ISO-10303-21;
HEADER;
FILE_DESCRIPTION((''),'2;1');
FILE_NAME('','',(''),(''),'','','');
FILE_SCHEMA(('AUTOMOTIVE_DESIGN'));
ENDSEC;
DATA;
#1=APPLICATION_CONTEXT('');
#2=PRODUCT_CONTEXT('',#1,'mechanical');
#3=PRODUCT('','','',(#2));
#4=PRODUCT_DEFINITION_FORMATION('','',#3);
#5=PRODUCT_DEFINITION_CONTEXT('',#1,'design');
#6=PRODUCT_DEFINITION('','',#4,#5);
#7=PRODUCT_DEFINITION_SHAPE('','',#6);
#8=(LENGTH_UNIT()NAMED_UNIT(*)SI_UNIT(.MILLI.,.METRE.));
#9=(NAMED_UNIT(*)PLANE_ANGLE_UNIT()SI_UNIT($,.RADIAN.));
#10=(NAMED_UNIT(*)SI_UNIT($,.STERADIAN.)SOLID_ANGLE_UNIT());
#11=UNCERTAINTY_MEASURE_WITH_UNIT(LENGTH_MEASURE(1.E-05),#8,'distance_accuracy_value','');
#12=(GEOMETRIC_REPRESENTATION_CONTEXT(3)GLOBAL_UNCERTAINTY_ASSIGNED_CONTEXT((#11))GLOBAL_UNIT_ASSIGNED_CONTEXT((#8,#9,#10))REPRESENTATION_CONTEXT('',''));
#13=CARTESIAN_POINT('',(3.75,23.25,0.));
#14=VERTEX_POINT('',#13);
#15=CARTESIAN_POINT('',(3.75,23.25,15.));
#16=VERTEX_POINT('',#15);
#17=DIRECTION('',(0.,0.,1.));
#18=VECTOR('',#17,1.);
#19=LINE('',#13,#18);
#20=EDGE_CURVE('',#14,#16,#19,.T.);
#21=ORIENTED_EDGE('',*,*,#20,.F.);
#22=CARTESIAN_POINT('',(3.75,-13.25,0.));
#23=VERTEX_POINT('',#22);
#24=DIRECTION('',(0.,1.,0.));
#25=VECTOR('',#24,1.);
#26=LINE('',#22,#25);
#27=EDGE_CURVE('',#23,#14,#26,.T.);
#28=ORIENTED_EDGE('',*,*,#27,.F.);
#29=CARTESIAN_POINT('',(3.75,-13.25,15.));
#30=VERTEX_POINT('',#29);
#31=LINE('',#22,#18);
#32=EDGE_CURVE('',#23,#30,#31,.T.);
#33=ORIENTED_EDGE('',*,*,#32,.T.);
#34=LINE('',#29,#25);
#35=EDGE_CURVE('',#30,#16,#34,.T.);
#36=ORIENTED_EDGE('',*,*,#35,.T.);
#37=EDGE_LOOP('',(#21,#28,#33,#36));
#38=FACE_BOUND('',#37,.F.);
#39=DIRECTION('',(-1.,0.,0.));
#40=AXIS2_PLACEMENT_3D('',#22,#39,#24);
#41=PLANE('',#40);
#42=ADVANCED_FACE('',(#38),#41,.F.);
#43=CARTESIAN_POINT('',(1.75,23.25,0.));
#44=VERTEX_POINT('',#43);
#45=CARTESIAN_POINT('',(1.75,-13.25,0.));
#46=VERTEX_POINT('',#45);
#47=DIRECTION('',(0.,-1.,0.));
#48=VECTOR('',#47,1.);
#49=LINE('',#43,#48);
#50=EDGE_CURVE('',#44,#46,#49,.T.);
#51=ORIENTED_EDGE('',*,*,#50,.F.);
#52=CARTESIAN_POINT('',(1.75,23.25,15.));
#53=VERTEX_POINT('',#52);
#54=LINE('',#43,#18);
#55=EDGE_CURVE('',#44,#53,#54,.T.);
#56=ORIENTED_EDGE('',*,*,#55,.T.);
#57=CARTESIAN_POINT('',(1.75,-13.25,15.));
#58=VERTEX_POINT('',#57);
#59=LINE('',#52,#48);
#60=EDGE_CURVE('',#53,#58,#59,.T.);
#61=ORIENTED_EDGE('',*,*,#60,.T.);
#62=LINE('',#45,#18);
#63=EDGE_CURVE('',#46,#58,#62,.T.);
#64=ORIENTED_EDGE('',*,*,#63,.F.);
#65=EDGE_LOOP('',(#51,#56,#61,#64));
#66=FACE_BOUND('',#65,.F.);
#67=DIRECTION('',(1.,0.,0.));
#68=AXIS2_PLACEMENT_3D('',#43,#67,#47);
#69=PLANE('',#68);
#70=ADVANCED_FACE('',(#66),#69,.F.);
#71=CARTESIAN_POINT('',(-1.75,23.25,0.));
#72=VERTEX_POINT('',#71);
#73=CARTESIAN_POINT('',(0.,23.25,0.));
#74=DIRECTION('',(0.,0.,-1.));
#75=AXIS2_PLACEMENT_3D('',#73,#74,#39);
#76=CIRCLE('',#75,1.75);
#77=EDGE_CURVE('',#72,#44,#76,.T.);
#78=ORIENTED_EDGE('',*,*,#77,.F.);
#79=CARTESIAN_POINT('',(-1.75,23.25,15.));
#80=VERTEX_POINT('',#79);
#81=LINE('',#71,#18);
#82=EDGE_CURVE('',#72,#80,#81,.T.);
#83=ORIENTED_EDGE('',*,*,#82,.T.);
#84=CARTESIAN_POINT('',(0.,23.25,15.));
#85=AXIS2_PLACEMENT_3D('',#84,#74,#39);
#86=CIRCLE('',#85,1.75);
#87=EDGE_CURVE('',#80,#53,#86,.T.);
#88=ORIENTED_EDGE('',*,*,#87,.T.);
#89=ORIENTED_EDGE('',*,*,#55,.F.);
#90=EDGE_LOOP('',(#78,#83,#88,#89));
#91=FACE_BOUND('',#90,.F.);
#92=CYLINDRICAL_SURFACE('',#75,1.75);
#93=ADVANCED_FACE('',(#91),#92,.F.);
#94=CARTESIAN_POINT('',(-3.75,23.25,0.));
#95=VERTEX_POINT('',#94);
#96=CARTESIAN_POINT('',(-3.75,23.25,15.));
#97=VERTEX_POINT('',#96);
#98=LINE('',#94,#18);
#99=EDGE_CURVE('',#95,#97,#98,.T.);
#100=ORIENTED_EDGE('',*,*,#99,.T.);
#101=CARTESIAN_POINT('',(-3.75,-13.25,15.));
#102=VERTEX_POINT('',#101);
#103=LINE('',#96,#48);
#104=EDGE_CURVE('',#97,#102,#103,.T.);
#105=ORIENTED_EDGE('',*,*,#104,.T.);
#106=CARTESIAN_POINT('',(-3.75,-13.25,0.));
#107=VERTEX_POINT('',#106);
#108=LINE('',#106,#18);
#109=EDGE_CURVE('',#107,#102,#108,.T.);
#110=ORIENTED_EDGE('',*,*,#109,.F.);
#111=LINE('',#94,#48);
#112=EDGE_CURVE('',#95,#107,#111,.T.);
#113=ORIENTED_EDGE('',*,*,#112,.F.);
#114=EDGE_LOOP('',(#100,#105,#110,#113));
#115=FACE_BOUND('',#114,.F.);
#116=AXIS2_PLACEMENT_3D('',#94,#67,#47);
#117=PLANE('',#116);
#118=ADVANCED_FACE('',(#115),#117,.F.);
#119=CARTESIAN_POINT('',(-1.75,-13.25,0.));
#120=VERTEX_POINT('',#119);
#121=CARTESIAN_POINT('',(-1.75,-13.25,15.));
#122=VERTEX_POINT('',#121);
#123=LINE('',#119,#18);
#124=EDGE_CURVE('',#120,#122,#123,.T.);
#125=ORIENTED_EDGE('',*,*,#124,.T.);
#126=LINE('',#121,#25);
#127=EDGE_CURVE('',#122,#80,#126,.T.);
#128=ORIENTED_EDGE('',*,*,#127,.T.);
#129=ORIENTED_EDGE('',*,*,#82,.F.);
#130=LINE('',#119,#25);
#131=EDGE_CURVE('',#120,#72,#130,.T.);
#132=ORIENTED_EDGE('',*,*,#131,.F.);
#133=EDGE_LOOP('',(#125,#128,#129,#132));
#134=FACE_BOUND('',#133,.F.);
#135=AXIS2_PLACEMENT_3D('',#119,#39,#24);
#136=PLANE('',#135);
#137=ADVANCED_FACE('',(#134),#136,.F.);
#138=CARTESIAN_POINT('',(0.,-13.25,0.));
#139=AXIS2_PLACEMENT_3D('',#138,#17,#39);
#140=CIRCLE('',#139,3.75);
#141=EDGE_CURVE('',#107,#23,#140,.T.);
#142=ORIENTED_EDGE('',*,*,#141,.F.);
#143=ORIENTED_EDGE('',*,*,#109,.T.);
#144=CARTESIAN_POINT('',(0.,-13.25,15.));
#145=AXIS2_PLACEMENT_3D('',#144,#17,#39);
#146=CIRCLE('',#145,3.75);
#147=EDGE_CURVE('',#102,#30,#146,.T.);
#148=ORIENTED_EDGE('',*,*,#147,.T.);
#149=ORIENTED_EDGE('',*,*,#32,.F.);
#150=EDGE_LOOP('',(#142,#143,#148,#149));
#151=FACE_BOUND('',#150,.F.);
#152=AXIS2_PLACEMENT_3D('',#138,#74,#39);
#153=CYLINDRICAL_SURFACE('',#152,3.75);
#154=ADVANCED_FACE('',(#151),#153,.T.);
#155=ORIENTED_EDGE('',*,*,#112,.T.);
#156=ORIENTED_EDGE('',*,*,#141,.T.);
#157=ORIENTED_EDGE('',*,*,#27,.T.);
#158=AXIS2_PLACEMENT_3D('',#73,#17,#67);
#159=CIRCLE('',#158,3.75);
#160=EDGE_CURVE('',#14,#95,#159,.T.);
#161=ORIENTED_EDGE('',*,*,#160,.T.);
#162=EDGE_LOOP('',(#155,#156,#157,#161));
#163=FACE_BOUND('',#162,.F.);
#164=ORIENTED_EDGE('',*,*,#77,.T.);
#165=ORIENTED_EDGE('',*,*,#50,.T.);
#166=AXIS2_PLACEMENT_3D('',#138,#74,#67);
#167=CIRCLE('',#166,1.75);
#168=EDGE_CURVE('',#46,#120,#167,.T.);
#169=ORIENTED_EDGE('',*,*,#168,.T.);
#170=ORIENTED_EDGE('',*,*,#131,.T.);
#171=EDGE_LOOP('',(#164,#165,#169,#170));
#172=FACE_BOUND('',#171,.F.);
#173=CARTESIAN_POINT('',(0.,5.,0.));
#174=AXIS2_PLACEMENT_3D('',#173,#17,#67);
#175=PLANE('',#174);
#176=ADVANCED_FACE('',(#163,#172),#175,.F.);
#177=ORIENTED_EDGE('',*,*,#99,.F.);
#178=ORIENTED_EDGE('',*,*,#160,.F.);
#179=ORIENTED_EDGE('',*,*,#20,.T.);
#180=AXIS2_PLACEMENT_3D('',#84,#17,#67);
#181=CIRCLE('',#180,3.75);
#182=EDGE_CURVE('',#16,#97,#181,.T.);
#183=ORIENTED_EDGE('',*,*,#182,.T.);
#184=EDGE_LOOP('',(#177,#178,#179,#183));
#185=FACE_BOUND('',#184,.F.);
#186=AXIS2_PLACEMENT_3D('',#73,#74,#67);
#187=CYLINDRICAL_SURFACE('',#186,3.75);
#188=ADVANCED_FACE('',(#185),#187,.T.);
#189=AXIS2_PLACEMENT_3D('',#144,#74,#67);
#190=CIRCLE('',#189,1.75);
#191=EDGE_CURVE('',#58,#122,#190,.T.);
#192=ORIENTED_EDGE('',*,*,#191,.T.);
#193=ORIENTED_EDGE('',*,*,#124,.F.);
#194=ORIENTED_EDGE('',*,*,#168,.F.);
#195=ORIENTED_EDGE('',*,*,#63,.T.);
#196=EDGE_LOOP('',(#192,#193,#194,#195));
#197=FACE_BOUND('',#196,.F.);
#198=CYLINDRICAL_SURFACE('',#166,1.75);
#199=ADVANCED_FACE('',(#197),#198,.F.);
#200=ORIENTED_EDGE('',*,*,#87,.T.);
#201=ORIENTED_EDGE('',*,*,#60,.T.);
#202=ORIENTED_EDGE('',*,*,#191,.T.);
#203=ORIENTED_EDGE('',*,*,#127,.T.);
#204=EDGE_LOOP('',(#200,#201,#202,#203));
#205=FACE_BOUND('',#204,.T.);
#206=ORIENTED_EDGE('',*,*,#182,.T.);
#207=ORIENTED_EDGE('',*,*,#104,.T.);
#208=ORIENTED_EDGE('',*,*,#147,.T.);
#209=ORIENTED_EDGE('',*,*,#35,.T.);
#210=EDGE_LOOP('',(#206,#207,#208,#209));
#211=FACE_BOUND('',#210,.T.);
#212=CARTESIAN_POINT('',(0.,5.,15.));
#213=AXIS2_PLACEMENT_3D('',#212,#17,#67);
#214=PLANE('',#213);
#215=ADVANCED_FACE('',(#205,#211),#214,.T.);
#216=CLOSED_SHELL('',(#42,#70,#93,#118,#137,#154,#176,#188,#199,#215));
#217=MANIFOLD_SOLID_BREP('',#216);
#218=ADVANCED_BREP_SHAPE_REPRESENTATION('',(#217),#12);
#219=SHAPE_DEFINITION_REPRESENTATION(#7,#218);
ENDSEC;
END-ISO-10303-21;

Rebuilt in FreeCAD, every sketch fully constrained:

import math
import FreeCAD as App
import Part
import Sketcher

V = App.Vector
Q = App.Units.Quantity

doc = App.newDocument("Part")
params = doc.addObject("Spreadsheet::Sheet", "Params")
for row, (alias, value) in enumerate([
    ("sketch1_radius", "3.75 mm"),
    ("sketch1_radius2", "1.75 mm"),
    ("sketch1_height", "36.5 mm"),
    ("pad1_length", "15 mm"),
], start=1):
    params.set(f"A{row}", alias)
    params.set(f"B{row}", "=" + value)
    params.setAlias(f"B{row}", alias)

body = doc.addObject("PartDesign::Body", "Body")

sketch1 = doc.addObject("Sketcher::SketchObject", "Sketch")
body.addObject(sketch1)
sketch1.AttachmentSupport = (doc.XY_Plane, [""])
sketch1.MapMode = "FlatFace"
sketch1.addGeometry([
    Part.ArcOfCircle(Part.Circle(V(0, 23.2, 0), V(0, 0, 1), 3.8), math.radians(0), math.radians(180)),
    Part.LineSegment(V(-3.8, 23.2, 0), V(-3.8, -13.2, 0)),
    Part.ArcOfCircle(Part.Circle(V(0, -13.2, 0), V(0, 0, 1), 3.8), math.radians(180), math.radians(360)),
    Part.LineSegment(V(3.8, -13.2, 0), V(3.8, 23.2, 0)),
    Part.LineSegment(V(-1.8, -13.2, 0), V(-1.8, 23.2, 0)),
    Part.ArcOfCircle(Part.Circle(V(0, 23.2, 0), V(0, 0, 1), 1.8), math.radians(0), math.radians(180)),
    Part.LineSegment(V(1.8, 23.2, 0), V(1.8, -13.2, 0)),
    Part.ArcOfCircle(Part.Circle(V(0, -13.2, 0), V(0, 0, 1), 1.8), math.radians(180), math.radians(360)),
], False)
sketch1.addConstraint([
    Sketcher.Constraint("Tangent", 0, 2, 1, 1),
    Sketcher.Constraint("Tangent", 1, 2, 2, 1),
    Sketcher.Constraint("Tangent", 2, 2, 3, 1),
    Sketcher.Constraint("Tangent", 3, 2, 0, 1),
    Sketcher.Constraint("Tangent", 4, 2, 5, 2),
    Sketcher.Constraint("Tangent", 5, 1, 6, 1),
    Sketcher.Constraint("Tangent", 6, 2, 7, 2),
    Sketcher.Constraint("Tangent", 7, 1, 4, 1),
    Sketcher.Constraint("Vertical", 1),
    Sketcher.Constraint("Vertical", 3),
    Sketcher.Constraint("Vertical", 4),
    Sketcher.Constraint("Vertical", 6),
    Sketcher.Constraint("Coincident", 5, 3, 0, 3),
    Sketcher.Constraint("PointOnObject", 0, 3, -2),
    Sketcher.Constraint("Horizontal", 7, 3, 1, 2),
    Sketcher.Constraint("Radius", 0, Q("3.75 mm")),
    Sketcher.Constraint("Radius", 5, Q("1.75 mm")),
    Sketcher.Constraint("DistanceY", 1, 2, 1, 1, Q("36.5 mm")),
    Sketcher.Constraint("DistanceY", -1, 1, 0, 3, Q("23.25 mm")),
])
sketch1.setExpression("Constraints[15]", "Params.sketch1_radius")
sketch1.setExpression("Constraints[16]", "Params.sketch1_radius2")
sketch1.setExpression("Constraints[17]", "Params.sketch1_height")
pad1 = doc.addObject("PartDesign::Pad", "Pad")
body.addObject(pad1)
pad1.Profile = sketch1
pad1.setExpression("Length", "Params.pad1_length")

doc.recompute()
